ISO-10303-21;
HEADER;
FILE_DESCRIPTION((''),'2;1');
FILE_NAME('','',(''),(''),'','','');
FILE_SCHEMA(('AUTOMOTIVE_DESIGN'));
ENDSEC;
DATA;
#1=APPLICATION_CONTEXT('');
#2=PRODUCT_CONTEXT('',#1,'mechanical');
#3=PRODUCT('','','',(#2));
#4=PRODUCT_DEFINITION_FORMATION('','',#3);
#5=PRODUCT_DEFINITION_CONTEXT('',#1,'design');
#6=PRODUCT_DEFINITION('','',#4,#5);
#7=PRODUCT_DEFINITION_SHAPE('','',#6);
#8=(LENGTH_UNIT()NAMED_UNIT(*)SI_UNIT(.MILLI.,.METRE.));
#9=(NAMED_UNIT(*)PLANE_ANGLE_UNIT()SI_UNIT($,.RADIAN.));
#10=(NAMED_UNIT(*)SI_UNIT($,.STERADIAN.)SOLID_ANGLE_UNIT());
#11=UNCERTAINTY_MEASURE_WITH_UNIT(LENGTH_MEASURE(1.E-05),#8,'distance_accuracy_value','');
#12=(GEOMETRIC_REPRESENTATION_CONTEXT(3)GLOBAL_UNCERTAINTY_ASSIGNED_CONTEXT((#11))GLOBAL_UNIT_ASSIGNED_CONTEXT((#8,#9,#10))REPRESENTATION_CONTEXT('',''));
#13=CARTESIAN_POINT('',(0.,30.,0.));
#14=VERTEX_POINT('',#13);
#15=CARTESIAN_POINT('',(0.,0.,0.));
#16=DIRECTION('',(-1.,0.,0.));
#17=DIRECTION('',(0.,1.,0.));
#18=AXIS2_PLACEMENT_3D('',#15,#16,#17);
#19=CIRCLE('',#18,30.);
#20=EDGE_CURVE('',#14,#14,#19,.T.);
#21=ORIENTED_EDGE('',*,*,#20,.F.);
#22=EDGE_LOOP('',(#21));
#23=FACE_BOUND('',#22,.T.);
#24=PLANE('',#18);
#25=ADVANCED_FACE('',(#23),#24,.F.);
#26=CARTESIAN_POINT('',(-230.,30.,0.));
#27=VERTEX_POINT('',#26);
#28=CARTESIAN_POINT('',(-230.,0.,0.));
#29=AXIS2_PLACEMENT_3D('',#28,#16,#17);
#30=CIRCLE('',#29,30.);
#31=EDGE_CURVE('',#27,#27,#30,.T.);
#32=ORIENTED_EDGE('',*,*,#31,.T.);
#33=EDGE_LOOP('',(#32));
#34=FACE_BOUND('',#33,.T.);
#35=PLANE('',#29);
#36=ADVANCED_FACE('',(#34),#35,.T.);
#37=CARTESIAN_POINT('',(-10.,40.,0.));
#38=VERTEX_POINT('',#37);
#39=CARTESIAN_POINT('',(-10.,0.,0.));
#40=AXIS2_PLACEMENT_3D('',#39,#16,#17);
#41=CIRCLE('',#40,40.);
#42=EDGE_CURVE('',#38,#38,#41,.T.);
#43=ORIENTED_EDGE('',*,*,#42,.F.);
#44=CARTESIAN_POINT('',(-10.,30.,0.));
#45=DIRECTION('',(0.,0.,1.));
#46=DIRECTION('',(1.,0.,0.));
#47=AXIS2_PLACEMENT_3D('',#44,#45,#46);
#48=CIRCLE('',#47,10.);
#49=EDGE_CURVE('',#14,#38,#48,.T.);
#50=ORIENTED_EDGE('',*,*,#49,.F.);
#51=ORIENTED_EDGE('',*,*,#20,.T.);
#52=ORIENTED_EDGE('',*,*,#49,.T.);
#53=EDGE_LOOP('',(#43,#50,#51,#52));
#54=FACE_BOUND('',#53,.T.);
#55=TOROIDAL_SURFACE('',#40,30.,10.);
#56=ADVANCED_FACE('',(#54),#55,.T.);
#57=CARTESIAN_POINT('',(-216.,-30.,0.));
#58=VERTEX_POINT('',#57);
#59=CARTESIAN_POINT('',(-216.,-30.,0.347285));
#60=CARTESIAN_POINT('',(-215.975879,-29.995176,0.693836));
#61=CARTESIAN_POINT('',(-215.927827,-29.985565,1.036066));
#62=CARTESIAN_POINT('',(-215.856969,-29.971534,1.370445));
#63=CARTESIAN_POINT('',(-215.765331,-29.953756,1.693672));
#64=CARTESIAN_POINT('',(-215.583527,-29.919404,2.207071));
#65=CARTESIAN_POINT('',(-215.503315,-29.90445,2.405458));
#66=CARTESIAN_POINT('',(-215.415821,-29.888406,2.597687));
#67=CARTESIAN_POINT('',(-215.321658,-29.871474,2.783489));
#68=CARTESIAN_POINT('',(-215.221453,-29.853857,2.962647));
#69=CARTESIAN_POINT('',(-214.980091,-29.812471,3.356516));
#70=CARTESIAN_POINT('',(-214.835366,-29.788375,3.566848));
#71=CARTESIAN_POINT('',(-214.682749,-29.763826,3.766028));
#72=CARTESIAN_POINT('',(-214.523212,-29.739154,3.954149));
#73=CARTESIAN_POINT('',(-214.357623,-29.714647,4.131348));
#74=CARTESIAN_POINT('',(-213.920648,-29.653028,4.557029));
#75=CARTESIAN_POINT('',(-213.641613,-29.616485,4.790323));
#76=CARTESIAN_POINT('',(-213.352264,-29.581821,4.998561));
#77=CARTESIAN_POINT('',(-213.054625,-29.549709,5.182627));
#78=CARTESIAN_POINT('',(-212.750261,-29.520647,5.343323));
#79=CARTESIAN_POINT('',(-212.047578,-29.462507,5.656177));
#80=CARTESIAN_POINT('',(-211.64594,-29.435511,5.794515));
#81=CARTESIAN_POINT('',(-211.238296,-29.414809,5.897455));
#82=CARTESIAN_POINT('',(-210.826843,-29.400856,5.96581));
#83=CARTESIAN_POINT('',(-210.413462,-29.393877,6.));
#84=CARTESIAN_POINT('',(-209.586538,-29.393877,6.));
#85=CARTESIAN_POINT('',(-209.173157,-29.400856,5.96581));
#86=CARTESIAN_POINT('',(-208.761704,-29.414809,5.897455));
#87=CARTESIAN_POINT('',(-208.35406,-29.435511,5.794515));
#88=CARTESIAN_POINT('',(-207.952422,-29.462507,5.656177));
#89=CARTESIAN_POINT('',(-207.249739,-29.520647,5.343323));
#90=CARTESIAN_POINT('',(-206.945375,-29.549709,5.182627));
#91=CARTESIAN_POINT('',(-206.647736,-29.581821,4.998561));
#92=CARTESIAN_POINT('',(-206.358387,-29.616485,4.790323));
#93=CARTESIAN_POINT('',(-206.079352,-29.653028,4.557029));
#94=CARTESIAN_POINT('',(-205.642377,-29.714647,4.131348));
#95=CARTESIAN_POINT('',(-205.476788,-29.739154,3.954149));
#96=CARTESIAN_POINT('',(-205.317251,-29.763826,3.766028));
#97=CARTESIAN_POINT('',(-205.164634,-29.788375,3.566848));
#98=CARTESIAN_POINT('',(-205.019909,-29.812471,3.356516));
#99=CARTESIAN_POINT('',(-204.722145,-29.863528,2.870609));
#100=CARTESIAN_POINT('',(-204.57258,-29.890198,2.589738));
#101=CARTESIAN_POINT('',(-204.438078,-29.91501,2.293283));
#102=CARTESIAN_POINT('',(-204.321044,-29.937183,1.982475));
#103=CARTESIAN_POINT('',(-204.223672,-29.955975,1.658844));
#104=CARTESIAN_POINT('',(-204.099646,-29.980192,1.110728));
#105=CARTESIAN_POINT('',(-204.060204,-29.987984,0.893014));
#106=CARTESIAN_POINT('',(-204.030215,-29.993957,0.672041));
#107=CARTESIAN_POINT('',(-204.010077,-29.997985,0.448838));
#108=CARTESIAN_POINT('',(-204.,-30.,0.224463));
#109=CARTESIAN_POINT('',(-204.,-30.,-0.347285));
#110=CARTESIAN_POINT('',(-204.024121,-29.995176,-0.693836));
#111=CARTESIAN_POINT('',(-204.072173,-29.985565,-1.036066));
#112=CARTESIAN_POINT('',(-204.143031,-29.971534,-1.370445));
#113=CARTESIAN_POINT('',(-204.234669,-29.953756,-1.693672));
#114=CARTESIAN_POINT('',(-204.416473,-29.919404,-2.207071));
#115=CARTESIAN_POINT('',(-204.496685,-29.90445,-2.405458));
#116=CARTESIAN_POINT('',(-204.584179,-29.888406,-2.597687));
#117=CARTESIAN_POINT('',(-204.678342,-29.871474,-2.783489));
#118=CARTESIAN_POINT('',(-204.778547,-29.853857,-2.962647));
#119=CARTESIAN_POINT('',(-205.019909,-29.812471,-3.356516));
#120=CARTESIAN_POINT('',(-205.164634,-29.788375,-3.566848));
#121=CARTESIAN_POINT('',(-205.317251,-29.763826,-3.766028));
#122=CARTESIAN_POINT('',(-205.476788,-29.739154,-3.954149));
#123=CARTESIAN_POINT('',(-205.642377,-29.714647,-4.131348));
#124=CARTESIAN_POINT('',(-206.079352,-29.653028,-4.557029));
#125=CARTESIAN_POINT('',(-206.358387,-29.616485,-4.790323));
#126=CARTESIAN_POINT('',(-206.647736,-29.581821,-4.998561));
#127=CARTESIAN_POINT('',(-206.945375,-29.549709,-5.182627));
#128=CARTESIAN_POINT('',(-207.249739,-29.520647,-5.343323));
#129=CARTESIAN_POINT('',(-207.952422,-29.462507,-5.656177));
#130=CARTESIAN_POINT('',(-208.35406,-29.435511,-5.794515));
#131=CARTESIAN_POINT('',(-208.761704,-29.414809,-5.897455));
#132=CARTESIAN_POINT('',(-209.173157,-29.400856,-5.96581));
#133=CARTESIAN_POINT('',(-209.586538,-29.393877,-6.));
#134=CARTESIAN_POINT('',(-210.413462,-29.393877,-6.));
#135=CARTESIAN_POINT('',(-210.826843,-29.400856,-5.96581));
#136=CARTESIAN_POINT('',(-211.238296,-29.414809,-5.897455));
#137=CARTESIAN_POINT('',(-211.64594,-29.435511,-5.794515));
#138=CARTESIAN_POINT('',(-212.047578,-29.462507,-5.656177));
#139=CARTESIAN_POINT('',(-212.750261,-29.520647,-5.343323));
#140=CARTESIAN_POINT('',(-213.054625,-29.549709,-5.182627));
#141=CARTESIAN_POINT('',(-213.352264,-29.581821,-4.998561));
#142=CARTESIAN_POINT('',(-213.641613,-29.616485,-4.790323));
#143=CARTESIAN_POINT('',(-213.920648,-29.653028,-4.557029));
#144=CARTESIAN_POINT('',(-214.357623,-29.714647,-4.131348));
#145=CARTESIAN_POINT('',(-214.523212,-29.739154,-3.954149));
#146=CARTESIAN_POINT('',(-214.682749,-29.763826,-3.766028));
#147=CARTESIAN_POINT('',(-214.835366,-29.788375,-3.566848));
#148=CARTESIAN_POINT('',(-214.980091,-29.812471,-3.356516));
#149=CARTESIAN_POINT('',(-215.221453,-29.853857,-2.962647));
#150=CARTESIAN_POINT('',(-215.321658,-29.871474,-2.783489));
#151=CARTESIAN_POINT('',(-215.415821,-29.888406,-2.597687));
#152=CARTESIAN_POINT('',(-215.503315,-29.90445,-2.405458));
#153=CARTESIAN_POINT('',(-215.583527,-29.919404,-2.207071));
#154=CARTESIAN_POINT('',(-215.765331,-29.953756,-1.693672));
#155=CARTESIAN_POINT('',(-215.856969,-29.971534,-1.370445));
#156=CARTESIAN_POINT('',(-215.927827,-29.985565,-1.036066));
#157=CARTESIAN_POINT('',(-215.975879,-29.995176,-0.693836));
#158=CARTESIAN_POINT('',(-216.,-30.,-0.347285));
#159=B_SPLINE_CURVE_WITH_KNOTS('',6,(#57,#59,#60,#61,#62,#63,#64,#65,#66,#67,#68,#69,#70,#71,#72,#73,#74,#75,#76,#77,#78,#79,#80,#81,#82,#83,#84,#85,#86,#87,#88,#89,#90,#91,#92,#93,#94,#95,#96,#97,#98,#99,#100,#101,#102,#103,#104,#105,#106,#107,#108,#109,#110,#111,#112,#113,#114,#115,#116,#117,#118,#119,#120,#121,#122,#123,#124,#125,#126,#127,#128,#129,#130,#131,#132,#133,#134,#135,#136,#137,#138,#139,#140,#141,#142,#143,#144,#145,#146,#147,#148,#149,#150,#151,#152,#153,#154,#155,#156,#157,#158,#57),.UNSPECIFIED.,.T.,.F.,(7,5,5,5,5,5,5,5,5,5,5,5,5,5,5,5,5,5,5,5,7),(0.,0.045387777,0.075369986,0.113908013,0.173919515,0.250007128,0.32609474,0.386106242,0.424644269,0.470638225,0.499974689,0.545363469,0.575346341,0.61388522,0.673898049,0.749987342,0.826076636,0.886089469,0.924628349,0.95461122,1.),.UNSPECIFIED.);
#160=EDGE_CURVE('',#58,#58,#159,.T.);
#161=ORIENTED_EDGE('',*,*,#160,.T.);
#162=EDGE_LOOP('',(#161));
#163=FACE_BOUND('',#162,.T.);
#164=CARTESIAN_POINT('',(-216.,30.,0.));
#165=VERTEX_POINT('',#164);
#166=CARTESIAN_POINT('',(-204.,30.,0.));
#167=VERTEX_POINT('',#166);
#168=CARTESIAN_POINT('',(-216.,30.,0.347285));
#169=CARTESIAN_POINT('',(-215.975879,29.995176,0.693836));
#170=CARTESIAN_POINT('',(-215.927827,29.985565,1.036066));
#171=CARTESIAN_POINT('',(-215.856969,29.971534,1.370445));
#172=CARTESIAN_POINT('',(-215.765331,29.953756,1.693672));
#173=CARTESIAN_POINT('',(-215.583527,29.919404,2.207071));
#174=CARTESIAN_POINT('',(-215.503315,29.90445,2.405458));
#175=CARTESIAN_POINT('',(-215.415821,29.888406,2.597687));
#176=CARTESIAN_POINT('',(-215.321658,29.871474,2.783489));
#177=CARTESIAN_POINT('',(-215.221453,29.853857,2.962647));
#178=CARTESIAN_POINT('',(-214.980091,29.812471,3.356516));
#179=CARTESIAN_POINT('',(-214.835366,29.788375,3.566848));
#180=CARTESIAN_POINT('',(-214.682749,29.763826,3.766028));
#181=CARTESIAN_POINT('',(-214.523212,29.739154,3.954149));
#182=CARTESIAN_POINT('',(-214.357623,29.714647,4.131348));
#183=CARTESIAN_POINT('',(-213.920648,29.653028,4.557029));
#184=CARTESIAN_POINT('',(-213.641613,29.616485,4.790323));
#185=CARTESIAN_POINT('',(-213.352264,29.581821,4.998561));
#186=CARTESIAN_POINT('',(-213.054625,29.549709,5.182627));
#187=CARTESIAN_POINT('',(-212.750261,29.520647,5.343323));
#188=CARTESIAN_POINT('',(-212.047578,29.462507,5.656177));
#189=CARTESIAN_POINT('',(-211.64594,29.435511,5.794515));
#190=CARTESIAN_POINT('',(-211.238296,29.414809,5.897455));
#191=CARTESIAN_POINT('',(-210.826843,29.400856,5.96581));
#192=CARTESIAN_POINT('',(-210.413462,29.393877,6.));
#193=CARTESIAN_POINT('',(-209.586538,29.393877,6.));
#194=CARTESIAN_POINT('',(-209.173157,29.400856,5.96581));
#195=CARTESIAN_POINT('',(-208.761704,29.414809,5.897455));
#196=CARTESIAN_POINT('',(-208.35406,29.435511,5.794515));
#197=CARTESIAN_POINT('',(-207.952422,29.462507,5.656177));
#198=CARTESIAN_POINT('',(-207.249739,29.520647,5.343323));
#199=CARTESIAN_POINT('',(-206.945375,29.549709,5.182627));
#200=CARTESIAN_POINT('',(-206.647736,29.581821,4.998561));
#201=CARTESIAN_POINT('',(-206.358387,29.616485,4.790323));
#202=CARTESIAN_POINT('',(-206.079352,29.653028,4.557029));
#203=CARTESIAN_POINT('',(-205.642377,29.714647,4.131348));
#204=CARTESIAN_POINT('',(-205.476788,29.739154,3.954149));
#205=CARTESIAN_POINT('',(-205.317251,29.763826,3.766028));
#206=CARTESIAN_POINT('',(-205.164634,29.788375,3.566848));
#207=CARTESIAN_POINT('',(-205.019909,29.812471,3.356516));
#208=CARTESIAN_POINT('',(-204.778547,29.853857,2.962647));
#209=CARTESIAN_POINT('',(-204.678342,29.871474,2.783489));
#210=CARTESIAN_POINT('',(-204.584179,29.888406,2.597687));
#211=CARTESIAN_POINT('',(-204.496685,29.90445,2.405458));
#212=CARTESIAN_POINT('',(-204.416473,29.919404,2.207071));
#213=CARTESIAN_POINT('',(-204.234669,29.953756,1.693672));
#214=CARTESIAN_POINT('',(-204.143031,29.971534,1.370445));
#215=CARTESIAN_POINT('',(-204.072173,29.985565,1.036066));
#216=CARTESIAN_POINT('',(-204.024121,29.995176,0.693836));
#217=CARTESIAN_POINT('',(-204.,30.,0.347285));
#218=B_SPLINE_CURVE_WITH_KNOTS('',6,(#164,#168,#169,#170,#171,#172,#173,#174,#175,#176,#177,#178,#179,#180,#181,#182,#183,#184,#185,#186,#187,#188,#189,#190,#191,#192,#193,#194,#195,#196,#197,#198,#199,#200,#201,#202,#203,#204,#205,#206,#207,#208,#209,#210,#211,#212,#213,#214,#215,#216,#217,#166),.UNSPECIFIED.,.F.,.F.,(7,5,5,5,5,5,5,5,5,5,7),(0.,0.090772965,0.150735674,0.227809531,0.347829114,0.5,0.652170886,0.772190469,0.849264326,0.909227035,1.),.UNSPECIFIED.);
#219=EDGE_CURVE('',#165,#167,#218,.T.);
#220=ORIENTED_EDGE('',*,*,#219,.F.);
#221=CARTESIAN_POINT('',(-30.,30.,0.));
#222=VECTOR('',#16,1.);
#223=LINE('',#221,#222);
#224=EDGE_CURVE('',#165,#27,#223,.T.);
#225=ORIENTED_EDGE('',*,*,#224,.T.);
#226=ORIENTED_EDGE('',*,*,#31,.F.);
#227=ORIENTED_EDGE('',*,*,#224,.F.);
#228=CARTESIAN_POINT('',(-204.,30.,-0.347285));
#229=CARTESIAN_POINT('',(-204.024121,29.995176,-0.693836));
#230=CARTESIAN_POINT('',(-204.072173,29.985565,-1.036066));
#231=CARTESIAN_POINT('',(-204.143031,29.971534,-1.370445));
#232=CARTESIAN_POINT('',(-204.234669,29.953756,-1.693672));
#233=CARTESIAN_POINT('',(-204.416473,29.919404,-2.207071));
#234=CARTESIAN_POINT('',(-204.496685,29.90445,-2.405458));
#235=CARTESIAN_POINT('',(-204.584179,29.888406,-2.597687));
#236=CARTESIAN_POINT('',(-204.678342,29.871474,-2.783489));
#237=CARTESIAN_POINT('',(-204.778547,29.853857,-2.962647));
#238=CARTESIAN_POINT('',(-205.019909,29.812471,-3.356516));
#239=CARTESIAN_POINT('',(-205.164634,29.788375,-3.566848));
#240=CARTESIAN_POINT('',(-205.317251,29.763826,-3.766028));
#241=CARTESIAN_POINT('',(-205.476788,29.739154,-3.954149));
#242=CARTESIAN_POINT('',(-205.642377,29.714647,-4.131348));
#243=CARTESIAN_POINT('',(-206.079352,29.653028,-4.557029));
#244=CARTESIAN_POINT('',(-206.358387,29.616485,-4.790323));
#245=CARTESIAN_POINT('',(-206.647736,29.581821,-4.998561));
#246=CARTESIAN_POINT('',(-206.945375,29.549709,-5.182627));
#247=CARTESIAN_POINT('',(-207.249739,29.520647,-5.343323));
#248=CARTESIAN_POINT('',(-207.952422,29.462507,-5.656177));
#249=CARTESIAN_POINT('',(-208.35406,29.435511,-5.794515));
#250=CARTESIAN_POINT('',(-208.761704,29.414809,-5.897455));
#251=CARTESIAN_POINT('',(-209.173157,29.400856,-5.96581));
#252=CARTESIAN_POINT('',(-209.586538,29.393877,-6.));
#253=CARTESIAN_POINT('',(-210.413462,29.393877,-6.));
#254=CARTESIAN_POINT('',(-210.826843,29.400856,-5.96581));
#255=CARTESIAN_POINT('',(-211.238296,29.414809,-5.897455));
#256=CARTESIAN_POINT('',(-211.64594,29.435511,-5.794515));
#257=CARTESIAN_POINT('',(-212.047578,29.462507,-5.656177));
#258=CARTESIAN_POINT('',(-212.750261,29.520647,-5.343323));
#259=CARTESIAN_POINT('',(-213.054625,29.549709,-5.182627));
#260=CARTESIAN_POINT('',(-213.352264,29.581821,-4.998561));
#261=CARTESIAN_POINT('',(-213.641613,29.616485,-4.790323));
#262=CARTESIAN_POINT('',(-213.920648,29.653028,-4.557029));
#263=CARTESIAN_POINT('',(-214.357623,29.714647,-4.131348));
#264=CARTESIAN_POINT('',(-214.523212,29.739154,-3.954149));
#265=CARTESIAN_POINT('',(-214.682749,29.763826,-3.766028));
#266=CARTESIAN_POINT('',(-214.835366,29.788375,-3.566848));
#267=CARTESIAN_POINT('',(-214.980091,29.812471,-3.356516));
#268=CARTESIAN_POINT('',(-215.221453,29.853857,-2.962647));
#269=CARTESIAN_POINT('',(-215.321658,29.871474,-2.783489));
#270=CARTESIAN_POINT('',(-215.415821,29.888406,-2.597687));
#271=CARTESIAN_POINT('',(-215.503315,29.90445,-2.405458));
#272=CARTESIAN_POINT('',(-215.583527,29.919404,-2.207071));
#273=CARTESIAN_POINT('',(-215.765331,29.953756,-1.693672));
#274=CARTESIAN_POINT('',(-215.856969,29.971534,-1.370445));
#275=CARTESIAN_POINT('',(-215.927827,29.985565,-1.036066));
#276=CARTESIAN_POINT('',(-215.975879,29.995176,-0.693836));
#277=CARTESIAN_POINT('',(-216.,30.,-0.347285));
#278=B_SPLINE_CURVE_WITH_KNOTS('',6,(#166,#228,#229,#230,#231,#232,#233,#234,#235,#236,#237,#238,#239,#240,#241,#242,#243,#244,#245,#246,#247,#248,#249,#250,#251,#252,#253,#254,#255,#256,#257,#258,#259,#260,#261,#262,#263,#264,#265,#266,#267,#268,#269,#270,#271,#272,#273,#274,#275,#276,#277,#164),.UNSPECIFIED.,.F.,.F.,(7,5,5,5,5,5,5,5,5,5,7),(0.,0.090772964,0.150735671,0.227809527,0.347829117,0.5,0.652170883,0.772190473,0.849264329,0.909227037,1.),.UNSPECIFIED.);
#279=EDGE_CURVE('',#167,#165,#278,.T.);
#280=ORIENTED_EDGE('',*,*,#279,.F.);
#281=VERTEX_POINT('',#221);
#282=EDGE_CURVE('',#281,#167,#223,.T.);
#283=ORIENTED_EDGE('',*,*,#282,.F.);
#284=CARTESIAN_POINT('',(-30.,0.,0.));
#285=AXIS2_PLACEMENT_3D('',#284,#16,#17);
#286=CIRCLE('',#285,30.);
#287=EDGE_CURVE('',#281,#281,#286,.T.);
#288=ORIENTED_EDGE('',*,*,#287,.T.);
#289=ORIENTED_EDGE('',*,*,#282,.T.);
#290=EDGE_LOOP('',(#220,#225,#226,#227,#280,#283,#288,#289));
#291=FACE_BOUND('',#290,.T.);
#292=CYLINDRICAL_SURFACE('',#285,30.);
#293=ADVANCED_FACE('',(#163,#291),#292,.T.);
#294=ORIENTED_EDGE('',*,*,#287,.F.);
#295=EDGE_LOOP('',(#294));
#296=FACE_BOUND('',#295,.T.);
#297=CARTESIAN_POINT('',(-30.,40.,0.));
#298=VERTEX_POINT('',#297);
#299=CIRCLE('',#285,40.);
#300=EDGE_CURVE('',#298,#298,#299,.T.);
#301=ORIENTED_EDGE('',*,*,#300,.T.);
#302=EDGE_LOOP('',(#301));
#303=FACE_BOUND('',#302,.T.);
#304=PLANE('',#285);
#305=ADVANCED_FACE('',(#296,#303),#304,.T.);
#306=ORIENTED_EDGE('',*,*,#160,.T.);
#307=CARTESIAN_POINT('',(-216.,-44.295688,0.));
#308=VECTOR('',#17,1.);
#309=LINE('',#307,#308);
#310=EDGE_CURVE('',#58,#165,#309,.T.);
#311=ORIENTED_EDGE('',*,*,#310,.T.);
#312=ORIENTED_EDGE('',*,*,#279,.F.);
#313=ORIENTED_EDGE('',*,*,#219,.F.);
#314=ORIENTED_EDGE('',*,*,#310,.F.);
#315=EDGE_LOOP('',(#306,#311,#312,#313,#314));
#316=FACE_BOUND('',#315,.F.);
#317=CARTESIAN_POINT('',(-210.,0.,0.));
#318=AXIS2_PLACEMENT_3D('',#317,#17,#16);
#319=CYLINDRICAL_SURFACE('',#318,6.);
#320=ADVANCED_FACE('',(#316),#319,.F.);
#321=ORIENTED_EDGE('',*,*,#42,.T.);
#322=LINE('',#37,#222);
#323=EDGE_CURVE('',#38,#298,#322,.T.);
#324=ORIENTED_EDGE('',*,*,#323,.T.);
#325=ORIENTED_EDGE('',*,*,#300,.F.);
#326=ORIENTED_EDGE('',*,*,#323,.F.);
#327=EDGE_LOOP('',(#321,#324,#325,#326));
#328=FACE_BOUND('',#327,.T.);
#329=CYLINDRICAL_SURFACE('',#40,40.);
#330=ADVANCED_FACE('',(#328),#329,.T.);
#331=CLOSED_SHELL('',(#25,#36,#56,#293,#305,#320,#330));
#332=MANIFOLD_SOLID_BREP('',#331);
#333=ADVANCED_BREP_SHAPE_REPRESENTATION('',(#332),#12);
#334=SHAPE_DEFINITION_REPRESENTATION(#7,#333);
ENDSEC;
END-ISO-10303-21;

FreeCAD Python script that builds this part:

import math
import FreeCAD as App
import Part
import Sketcher
from FreeCAD import Vector

doc = App.newDocument("Part")
body = doc.addObject("PartDesign::Body", "Body")

# Sketch on XY plane
sketch1 = doc.addObject("Sketcher::SketchObject", "Sketch")
body.addObject(sketch1)
sketch1.AttachmentSupport = (doc.XY_Plane, [""])
sketch1.MapMode = "FlatFace"
sketch1.addGeometry([
    Part.LineSegment(Vector(-230, 0, 0), Vector(0, 0, 0)),  # 0
    Part.LineSegment(Vector(0, 0, 0), Vector(0, 30, 0)),  # 1
    Part.ArcOfCircle(Part.Circle(Vector(-10, 30, 0), Vector(0, 0, 1), 10), math.radians(0), math.radians(90)),  # 2
    Part.LineSegment(Vector(-10, 40, 0), Vector(-30, 40, 0)),  # 3
    Part.LineSegment(Vector(-30, 40, 0), Vector(-30, 30, 0)),  # 4
    Part.LineSegment(Vector(-30, 30, 0), Vector(-230, 30, 0)),  # 5
    Part.LineSegment(Vector(-230, 30, 0), Vector(-230, 0, 0)),  # 6
], False)
sketch1.addConstraint([
    Sketcher.Constraint("Coincident", 0, 2, 1, 1),
    Sketcher.Constraint("Tangent", 1, 2, 2, 1),
    Sketcher.Constraint("Tangent", 2, 2, 3, 1),
    Sketcher.Constraint("Coincident", 3, 2, 4, 1),
    Sketcher.Constraint("Coincident", 4, 2, 5, 1),
    Sketcher.Constraint("Coincident", 5, 2, 6, 1),
    Sketcher.Constraint("Coincident", 6, 2, 0, 1),
    Sketcher.Constraint("Horizontal", 0),
    Sketcher.Constraint("Vertical", 1),
    Sketcher.Constraint("Horizontal", 3),
    Sketcher.Constraint("Vertical", 4),
    Sketcher.Constraint("Horizontal", 5),
    Sketcher.Constraint("Vertical", 6),
    Sketcher.Constraint("Coincident", 0, 2, -1, 1),
    Sketcher.Constraint("Horizontal", 1, 2, 4, 2),
    Sketcher.Constraint("Radius", 2, 10.0),
    Sketcher.Constraint("DistanceX", 0, 1, 0, 2, 230.0),
    Sketcher.Constraint("DistanceY", 1, 1, 1, 2, 30.0),
    Sketcher.Constraint("DistanceX", 3, 2, -1, 1, 30.0),
])
revolution = doc.addObject("PartDesign::Revolution", "Revolution")
body.addObject(revolution)
revolution.Profile = sketch1
revolution.ReferenceAxis = (sketch1, ["H_Axis"])
revolution.Angle = 360

# Sketch on XZ plane
sketch2 = doc.addObject("Sketcher::SketchObject", "Sketch001")
body.addObject(sketch2)
sketch2.AttachmentSupport = (doc.XZ_Plane, [""])
sketch2.MapMode = "FlatFace"
sketch2.addGeometry(Part.Circle(Vector(-210, 0, 0), Vector(0, 0, 1), 6), False)
sketch2.addConstraint([
    Sketcher.Constraint("PointOnObject", 0, 3, -1),
    Sketcher.Constraint("Diameter", 0, 12.0),
    Sketcher.Constraint("DistanceX", 0, 3, -1, 1, 210.0),
])
pocket1 = doc.addObject("PartDesign::Pocket", "Pocket")
body.addObject(pocket1)
pocket1.Profile = sketch2
pocket1.Type = "ThroughAll"
pocket1.Midplane = True

doc.recompute()
